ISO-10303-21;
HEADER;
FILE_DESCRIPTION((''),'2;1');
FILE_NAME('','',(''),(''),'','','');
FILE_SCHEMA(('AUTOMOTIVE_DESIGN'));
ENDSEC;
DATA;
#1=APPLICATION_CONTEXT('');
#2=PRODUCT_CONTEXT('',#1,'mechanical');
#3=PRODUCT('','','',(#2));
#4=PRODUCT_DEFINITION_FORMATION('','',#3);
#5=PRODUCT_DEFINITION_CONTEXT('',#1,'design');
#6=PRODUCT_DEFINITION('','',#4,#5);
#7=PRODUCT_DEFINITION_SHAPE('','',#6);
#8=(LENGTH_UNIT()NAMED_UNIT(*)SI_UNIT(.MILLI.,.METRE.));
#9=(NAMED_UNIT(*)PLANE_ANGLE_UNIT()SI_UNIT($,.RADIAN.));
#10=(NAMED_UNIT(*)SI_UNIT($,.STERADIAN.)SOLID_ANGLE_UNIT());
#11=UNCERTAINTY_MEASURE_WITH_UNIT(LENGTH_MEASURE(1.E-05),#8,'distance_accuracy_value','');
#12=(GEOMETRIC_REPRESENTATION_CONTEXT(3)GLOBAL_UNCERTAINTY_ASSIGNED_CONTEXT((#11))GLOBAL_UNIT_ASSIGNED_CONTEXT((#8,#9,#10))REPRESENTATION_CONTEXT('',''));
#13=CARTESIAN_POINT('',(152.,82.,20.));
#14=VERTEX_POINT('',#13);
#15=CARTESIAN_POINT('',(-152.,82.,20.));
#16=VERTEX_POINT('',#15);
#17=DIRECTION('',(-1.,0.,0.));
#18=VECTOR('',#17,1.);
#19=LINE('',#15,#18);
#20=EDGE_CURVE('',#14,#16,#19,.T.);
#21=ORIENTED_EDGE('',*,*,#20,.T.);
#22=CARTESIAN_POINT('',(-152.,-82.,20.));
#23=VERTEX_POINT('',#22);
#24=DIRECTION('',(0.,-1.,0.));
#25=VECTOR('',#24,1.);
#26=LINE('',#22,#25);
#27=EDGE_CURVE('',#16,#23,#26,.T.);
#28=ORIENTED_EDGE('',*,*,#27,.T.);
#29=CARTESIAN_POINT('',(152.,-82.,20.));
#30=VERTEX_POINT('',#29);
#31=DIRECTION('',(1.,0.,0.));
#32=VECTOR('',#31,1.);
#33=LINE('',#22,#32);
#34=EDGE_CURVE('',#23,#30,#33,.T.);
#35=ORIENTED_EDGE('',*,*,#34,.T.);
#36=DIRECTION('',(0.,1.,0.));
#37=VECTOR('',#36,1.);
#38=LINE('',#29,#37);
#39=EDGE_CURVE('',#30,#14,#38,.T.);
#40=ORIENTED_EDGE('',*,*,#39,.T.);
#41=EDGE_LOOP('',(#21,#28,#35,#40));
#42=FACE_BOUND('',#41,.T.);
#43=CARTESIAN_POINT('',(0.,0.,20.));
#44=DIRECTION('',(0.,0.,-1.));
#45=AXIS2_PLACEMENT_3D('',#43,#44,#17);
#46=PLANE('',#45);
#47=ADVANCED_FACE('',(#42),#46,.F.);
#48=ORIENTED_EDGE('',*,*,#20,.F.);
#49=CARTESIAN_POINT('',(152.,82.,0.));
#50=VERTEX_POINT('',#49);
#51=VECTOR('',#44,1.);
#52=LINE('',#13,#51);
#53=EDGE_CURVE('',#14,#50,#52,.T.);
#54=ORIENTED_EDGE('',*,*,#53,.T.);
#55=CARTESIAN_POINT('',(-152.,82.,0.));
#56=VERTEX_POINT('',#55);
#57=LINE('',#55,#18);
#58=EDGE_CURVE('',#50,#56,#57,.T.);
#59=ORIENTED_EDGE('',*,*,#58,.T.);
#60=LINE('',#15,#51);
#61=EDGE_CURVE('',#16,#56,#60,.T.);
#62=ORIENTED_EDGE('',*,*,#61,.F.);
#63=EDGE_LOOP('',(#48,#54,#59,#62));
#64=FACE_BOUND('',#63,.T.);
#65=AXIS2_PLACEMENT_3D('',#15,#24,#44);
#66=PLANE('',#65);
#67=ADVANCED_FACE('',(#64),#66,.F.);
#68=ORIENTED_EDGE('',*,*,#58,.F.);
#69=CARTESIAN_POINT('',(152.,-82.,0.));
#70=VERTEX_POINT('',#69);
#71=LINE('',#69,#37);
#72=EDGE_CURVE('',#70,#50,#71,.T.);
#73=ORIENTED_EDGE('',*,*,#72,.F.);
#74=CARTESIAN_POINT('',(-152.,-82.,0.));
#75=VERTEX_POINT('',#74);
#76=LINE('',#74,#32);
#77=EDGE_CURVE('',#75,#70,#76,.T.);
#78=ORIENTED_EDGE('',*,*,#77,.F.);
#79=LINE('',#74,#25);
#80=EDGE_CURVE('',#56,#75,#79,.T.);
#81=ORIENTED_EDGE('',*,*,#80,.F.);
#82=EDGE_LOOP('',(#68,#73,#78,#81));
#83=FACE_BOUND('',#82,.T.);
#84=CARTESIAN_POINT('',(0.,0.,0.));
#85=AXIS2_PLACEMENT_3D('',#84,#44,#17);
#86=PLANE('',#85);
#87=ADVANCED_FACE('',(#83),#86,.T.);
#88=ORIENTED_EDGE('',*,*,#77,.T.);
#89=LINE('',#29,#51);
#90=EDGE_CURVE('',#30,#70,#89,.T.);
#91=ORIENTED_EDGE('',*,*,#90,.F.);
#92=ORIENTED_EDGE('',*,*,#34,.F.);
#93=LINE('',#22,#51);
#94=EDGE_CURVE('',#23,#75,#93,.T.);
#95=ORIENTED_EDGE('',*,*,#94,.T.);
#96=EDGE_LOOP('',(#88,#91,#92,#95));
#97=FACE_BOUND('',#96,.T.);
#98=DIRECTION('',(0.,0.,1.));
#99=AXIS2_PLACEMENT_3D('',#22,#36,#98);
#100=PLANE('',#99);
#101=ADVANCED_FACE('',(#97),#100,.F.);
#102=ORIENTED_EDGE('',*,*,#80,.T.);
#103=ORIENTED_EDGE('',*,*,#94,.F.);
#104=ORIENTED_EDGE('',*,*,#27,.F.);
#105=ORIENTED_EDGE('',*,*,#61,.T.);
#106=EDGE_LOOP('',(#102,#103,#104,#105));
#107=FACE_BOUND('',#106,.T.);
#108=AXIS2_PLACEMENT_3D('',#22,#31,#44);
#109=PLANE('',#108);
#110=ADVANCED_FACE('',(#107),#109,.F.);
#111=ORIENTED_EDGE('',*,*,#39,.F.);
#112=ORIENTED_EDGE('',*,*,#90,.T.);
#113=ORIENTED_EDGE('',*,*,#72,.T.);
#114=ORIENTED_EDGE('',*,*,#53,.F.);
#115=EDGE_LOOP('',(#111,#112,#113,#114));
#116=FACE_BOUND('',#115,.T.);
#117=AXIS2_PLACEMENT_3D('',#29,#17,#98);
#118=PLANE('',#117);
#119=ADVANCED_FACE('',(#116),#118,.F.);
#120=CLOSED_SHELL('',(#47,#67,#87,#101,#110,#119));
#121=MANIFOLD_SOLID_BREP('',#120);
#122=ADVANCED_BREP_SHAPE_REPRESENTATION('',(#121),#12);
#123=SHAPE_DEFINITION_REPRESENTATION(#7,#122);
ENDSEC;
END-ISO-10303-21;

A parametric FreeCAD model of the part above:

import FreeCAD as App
import Part
import Sketcher
Q = App.Units.Quantity

doc = App.newDocument("Part")
body = doc.addObject("PartDesign::Body", "Body")

sketch1 = doc.addObject("Sketcher::SketchObject", "Sketch")
body.addObject(sketch1)
sketch1.AttachmentSupport = (doc.XY_Plane, [""])
sketch1.MapMode = "FlatFace"
sketch1.addGeometry(Part.LineSegment(App.Vector(-152, 82, 0), App.Vector(-152, -82, 0)), False)
sketch1.addGeometry(Part.LineSegment(App.Vector(-152, -82, 0), App.Vector(152, -82, 0)), False)
sketch1.addGeometry(Part.LineSegment(App.Vector(152, -82, 0), App.Vector(152, 82, 0)), False)
sketch1.addGeometry(Part.LineSegment(App.Vector(152, 82, 0), App.Vector(-152, 82, 0)), False)
sketch1.addConstraint(Sketcher.Constraint("Coincident", 0, 2, 1, 1))
sketch1.addConstraint(Sketcher.Constraint("Coincident", 1, 2, 2, 1))
sketch1.addConstraint(Sketcher.Constraint("Coincident", 2, 2, 3, 1))
sketch1.addConstraint(Sketcher.Constraint("Coincident", 3, 2, 0, 1))
sketch1.addConstraint(Sketcher.Constraint("Vertical", 0))
sketch1.addConstraint(Sketcher.Constraint("Horizontal", 1))
sketch1.addConstraint(Sketcher.Constraint("Vertical", 2))
sketch1.addConstraint(Sketcher.Constraint("Horizontal", 3))
sketch1.addConstraint(Sketcher.Constraint("Symmetric", 0, 2, 2, 2, -1, 1))
sketch1.addConstraint(Sketcher.Constraint("DistanceX", 1, 1, 1, 2, Q("304 mm")))
sketch1.addConstraint(Sketcher.Constraint("DistanceY", 0, 2, 0, 1, Q("164 mm")))
pad1 = doc.addObject("PartDesign::Pad", "Pad")
body.addObject(pad1)
pad1.Profile = sketch1
pad1.Length = 20

doc.recompute()
